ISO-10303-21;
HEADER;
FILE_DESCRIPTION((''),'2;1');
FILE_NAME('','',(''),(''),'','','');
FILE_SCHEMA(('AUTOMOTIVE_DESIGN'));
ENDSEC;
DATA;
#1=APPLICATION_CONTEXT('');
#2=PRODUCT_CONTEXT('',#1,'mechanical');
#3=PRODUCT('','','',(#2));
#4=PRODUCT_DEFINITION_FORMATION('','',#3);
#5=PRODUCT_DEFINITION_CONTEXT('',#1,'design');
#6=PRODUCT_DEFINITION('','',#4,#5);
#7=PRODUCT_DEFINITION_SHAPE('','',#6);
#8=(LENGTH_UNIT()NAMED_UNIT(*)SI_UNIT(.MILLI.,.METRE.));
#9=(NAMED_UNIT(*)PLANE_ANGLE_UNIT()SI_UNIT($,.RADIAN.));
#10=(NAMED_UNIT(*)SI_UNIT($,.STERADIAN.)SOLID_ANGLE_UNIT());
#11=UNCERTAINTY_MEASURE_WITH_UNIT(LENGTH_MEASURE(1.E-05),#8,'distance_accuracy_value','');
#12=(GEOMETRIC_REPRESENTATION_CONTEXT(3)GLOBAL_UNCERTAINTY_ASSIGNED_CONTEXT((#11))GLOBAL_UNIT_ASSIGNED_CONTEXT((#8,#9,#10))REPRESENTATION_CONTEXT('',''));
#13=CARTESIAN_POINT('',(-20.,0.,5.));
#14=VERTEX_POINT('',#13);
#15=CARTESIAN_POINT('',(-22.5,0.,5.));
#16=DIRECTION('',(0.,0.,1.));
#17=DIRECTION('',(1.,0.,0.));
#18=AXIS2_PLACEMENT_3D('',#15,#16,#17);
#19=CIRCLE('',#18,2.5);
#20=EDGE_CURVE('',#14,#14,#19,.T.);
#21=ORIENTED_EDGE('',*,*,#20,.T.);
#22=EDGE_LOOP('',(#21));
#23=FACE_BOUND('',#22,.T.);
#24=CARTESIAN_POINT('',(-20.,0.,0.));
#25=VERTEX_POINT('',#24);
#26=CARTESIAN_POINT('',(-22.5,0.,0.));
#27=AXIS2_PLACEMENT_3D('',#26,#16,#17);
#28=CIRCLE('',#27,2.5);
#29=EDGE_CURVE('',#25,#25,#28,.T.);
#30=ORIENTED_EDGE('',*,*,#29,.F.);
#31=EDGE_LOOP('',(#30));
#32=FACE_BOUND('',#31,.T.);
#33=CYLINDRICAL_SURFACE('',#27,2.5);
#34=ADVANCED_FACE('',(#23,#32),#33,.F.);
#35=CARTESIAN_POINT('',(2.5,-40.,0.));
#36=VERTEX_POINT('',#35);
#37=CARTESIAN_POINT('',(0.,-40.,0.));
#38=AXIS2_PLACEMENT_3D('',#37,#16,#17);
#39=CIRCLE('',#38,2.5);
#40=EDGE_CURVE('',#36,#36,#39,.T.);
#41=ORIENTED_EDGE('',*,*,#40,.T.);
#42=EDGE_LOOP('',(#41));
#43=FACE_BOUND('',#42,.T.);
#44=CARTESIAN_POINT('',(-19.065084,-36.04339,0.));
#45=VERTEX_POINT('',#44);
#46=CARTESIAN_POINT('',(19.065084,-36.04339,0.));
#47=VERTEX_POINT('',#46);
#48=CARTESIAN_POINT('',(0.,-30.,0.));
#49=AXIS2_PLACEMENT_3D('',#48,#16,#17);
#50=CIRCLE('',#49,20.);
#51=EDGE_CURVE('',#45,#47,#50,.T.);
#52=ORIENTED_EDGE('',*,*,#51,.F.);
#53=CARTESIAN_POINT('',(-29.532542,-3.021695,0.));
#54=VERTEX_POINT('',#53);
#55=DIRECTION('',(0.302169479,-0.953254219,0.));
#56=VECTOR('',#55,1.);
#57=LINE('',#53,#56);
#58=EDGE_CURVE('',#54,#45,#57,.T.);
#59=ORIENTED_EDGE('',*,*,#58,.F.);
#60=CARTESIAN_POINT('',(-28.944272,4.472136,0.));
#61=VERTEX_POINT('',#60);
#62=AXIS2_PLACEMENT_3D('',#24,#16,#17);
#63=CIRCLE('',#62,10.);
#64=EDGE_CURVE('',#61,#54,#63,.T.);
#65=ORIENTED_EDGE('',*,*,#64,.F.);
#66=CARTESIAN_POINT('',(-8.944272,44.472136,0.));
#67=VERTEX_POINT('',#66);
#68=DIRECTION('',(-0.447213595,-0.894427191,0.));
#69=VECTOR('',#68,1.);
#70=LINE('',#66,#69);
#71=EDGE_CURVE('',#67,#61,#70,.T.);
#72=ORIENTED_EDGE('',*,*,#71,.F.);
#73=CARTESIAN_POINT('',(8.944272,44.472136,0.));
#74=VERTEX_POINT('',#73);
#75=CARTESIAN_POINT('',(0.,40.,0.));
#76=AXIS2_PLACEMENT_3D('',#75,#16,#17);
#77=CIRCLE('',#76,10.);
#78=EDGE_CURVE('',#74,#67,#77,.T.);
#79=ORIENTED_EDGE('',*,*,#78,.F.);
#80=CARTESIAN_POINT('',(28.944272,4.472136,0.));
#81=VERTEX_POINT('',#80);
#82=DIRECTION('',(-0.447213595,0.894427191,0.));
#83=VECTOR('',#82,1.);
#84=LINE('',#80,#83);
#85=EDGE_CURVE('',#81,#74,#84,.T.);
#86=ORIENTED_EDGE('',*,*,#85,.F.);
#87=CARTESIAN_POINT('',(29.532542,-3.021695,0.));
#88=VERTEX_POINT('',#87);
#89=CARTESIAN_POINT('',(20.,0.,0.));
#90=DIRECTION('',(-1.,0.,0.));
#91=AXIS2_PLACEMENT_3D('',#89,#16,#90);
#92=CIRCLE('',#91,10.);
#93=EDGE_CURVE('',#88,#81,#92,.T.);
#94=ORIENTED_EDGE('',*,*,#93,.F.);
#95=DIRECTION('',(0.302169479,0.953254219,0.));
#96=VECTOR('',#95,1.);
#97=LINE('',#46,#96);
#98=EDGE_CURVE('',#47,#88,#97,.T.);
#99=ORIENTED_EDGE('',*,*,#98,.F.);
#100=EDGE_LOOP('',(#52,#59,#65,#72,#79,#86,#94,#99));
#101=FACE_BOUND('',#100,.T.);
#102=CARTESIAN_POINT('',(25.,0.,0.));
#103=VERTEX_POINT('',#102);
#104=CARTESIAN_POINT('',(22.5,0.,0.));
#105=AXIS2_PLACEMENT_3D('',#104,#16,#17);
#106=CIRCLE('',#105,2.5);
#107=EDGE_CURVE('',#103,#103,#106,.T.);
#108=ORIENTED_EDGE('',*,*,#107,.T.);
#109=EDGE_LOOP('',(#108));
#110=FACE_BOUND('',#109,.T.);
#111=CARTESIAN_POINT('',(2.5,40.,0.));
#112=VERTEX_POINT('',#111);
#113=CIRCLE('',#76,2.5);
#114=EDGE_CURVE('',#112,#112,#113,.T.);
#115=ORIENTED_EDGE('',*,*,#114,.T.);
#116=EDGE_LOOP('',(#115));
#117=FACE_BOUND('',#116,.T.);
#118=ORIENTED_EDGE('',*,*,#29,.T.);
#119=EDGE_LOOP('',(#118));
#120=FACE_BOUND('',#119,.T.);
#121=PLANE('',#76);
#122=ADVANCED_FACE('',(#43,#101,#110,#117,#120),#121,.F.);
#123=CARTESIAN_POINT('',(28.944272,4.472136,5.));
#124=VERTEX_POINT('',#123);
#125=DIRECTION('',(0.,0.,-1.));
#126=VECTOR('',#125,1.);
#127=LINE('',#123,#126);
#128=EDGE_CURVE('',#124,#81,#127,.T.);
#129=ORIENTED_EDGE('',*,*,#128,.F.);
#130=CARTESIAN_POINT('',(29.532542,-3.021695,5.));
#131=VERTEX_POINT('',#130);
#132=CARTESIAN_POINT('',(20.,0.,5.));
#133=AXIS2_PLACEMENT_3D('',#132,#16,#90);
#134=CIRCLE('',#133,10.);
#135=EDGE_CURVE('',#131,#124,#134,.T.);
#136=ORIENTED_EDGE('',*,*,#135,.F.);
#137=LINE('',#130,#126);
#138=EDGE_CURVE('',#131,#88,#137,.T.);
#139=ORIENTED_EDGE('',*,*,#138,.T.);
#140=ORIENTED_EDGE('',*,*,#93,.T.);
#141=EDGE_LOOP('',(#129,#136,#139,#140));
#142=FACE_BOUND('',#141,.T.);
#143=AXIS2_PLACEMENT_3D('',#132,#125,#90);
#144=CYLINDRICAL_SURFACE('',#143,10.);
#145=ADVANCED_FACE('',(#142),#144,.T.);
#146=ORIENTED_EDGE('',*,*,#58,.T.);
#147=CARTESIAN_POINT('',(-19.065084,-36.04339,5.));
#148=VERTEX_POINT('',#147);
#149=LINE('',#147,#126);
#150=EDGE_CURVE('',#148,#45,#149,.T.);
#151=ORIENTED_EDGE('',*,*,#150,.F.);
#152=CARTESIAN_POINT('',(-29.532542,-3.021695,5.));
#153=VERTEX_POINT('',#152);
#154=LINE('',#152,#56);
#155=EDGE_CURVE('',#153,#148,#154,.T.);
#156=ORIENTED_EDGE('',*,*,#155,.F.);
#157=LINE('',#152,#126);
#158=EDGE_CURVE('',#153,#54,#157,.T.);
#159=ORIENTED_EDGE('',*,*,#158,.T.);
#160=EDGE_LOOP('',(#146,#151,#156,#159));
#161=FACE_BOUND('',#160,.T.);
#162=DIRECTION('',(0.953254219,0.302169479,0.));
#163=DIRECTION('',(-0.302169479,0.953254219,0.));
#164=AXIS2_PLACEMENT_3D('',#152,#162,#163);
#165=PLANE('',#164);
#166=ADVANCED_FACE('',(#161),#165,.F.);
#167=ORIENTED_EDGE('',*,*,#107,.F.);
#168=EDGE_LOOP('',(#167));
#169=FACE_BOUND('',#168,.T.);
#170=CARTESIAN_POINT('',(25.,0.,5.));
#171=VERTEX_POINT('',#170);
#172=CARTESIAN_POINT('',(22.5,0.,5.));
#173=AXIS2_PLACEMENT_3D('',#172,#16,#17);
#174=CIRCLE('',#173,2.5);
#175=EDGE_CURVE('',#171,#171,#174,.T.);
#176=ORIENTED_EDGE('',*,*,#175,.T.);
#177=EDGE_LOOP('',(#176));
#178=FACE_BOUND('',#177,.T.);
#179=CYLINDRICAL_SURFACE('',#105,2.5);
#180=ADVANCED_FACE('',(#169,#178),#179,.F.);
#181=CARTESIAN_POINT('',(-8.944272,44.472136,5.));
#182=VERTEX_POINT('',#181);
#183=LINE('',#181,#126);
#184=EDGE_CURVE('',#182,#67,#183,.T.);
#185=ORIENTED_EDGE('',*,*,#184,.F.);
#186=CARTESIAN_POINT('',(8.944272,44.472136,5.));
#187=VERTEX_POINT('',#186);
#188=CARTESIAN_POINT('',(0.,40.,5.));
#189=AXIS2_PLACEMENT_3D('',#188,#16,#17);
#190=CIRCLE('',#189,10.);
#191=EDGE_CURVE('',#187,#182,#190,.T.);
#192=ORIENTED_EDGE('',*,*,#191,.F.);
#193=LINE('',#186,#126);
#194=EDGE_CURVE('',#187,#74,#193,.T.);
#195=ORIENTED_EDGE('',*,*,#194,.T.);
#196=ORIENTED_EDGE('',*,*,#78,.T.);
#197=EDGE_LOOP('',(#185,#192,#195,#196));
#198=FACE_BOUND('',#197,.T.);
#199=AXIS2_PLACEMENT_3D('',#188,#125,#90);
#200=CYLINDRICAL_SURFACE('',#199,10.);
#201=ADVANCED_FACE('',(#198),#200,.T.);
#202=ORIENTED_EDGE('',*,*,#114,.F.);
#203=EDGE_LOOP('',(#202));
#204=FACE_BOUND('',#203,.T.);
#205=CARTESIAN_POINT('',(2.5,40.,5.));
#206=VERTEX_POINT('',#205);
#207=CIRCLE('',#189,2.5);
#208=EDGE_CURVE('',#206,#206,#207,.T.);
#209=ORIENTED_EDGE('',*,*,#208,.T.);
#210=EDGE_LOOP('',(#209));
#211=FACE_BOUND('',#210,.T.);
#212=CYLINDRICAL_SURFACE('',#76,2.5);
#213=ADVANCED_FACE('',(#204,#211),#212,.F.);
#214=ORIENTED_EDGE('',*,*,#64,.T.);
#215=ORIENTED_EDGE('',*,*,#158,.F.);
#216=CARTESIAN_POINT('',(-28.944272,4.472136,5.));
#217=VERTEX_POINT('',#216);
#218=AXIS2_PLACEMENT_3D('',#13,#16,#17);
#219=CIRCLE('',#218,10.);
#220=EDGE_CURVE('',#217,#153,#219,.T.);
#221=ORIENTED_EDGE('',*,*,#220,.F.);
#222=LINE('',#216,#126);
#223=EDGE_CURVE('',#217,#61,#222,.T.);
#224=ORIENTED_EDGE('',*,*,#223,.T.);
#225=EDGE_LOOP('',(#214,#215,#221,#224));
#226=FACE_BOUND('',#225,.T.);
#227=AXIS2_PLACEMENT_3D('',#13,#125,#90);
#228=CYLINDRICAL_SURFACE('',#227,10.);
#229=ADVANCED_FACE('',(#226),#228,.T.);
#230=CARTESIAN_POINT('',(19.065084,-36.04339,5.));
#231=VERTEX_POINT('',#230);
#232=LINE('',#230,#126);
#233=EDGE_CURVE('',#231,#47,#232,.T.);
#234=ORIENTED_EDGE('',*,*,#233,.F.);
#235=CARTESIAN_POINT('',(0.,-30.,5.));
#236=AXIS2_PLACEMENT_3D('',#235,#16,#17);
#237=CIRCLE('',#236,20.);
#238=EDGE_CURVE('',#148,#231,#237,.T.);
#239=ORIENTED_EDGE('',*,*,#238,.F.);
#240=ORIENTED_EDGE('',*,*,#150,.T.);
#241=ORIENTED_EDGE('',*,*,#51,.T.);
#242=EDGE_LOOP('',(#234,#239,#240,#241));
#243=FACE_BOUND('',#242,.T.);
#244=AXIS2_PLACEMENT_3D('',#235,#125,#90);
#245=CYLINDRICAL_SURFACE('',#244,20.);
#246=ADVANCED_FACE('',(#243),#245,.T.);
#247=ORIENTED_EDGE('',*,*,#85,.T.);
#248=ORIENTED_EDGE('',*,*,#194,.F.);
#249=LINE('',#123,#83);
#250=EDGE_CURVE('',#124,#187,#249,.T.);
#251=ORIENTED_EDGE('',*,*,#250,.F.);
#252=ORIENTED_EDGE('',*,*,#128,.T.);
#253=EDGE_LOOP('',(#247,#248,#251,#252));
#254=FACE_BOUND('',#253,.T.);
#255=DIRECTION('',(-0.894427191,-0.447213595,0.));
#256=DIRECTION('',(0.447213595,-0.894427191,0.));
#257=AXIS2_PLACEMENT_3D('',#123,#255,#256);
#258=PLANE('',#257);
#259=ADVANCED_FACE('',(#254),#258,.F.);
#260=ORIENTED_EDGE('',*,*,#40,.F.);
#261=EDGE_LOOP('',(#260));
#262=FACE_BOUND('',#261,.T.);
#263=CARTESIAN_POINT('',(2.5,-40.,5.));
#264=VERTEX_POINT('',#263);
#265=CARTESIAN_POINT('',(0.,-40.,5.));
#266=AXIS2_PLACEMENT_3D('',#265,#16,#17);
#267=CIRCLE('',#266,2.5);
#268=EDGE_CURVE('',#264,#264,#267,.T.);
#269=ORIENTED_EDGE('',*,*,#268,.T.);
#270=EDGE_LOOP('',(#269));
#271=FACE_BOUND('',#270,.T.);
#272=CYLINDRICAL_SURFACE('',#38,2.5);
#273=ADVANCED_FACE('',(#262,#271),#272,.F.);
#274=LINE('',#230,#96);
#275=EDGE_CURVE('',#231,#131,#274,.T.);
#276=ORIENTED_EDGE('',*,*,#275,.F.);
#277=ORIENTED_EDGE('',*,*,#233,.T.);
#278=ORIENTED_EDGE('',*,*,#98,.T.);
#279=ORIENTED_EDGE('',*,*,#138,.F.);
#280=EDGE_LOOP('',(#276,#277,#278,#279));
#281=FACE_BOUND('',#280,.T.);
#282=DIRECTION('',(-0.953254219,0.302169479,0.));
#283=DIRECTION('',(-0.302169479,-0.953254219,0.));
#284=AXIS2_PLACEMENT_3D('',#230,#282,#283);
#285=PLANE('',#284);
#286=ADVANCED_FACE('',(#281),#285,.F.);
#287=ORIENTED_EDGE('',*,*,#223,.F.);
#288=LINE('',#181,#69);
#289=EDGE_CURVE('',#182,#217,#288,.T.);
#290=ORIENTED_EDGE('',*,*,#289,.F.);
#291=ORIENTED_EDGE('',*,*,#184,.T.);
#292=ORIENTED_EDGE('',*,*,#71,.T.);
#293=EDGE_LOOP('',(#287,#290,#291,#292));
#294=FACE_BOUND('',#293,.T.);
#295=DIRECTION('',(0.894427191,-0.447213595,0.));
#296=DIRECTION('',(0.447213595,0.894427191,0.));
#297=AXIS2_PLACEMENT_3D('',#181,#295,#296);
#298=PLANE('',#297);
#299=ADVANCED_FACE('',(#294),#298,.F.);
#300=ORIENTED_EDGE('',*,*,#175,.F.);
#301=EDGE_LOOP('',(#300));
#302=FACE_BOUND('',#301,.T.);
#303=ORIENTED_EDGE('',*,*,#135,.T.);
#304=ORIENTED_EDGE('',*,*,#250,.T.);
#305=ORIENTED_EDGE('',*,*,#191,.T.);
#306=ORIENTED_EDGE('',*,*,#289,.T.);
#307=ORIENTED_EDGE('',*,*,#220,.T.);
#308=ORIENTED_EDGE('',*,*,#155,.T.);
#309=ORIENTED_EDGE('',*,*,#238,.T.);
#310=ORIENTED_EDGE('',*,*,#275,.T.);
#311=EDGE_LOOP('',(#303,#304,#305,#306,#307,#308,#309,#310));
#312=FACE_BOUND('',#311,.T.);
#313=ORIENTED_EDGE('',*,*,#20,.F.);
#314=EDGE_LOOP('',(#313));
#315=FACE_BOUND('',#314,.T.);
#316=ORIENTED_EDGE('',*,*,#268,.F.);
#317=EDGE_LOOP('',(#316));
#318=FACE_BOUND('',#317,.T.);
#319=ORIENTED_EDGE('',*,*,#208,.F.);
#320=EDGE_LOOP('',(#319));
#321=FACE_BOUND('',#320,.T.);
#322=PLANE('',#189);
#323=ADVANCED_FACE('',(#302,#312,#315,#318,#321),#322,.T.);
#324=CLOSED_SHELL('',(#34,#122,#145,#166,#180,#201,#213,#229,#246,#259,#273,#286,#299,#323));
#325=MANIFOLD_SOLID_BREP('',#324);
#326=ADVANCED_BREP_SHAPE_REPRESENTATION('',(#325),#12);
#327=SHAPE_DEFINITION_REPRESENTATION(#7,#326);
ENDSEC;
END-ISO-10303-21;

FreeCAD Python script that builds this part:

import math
import FreeCAD as App
import Part
import Sketcher

V = App.Vector
Q = App.Units.Quantity

doc = App.newDocument("Part")
body = doc.addObject("PartDesign::Body", "Body")

# Sketch on XY plane
sketch1 = body.newObject("Sketcher::SketchObject", "Sketch")
sketch1.AttachmentSupport = (doc.getObject("XY_Plane"), [""])
sketch1.MapMode = "FlatFace"
sketch1.addGeometry([
    Part.LineSegment(V(28.944272, 4.472136, 0), V(8.944272, 44.472136, 0)),  # 0
    Part.ArcOfCircle(Part.Circle(V(0, 40, 0), V(0, 0, 1), 10), math.radians(26.565051), math.radians(153.434949)),  # 1
    Part.LineSegment(V(-8.944272, 44.472136, 0), V(-28.944272, 4.472136, 0)),  # 2
    Part.ArcOfCircle(Part.Circle(V(-20, 0, 0), V(0, 0, 1), 10), math.radians(153.434949), math.radians(197.587954)),  # 3
    Part.LineSegment(V(-29.532542, -3.021695, 0), V(-19.065084, -36.04339, 0)),  # 4
    Part.ArcOfCircle(Part.Circle(V(0, -30, 0), V(0, 0, 1), 20), math.radians(-162.412046), math.radians(-17.587954)),  # 5
    Part.LineSegment(V(19.065084, -36.04339, 0), V(29.532542, -3.021695, 0)),  # 6
    Part.ArcOfCircle(Part.Circle(V(20, 0, 0), V(0, 0, 1), 10), math.radians(-17.587954), math.radians(26.565051)),  # 7
], False)
sketch1.addConstraint([
    Sketcher.Constraint("Tangent", 0, 2, 1, 1),
    Sketcher.Constraint("Tangent", 1, 2, 2, 1),
    Sketcher.Constraint("Tangent", 2, 2, 3, 1),
    Sketcher.Constraint("Tangent", 3, 2, 4, 1),
    Sketcher.Constraint("Tangent", 4, 2, 5, 1),
    Sketcher.Constraint("Tangent", 5, 2, 6, 1),
    Sketcher.Constraint("Tangent", 6, 2, 7, 1),
    Sketcher.Constraint("Tangent", 7, 2, 0, 1),
    Sketcher.Constraint("Equal", 1, 3),
    Sketcher.Constraint("Equal", 3, 7),
    Sketcher.Constraint("Symmetric", 3, 3, 7, 3, -1, 1),
    Sketcher.Constraint("Symmetric", 0, 2, 1, 2, -2),
    Sketcher.Constraint("PointOnObject", 5, 3, -2),
    Sketcher.Constraint("Radius", 1, Q("10 mm")),
    Sketcher.Constraint("Radius", 5, Q("20 mm")),
    Sketcher.Constraint("DistanceY", -1, 1, 1, 3, Q("40 mm")),
    Sketcher.Constraint("DistanceX", 3, 3, -1, 1, Q("20 mm")),
    Sketcher.Constraint("DistanceY", 5, 3, -1, 1, Q("30 mm")),
])
pad1 = body.newObject("PartDesign::Pad", "Pad")
pad1.Profile = sketch1
pad1.Length = 5

# Sketch on XY plane
sketch2 = body.newObject("Sketcher::SketchObject", "Sketch001")
sketch2.AttachmentSupport = (doc.getObject("XY_Plane"), [""])
sketch2.MapMode = "FlatFace"
sketch2.AttachmentOffset = App.Placement(V(0, 0, 5), App.Rotation())
sketch2.addGeometry([
    Part.Circle(V(0, 40, 0), V(0, 0, 1), 2.5),
    Part.Circle(V(0, -40, 0), V(0, 0, 1), 2.5),
    Part.Circle(V(22.5, 0, 0), V(0, 0, 1), 2.5),
    Part.Circle(V(-22.5, 0, 0), V(0, 0, 1), 2.5),
], False)
sketch2.addConstraint([
    Sketcher.Constraint("Equal", 0, 1),
    Sketcher.Constraint("Equal", 1, 2),
    Sketcher.Constraint("Equal", 2, 3),
    Sketcher.Constraint("Symmetric", 0, 3, 1, 3, -1, 1),
    Sketcher.Constraint("Symmetric", 2, 3, 3, 3, -1, 1),
    Sketcher.Constraint("PointOnObject", 0, 3, -2),
    Sketcher.Constraint("PointOnObject", 2, 3, -1),
    Sketcher.Constraint("Diameter", 0, Q("5 mm")),
    Sketcher.Constraint("DistanceY", -1, 1, 0, 3, Q("40 mm")),
    Sketcher.Constraint("DistanceX", 3, 3, 2, 3, Q("45 mm")),
])
pocket1 = body.newObject("PartDesign::Pocket", "Pocket")
pocket1.Profile = sketch2
pocket1.Type = "ThroughAll"

doc.recompute()
